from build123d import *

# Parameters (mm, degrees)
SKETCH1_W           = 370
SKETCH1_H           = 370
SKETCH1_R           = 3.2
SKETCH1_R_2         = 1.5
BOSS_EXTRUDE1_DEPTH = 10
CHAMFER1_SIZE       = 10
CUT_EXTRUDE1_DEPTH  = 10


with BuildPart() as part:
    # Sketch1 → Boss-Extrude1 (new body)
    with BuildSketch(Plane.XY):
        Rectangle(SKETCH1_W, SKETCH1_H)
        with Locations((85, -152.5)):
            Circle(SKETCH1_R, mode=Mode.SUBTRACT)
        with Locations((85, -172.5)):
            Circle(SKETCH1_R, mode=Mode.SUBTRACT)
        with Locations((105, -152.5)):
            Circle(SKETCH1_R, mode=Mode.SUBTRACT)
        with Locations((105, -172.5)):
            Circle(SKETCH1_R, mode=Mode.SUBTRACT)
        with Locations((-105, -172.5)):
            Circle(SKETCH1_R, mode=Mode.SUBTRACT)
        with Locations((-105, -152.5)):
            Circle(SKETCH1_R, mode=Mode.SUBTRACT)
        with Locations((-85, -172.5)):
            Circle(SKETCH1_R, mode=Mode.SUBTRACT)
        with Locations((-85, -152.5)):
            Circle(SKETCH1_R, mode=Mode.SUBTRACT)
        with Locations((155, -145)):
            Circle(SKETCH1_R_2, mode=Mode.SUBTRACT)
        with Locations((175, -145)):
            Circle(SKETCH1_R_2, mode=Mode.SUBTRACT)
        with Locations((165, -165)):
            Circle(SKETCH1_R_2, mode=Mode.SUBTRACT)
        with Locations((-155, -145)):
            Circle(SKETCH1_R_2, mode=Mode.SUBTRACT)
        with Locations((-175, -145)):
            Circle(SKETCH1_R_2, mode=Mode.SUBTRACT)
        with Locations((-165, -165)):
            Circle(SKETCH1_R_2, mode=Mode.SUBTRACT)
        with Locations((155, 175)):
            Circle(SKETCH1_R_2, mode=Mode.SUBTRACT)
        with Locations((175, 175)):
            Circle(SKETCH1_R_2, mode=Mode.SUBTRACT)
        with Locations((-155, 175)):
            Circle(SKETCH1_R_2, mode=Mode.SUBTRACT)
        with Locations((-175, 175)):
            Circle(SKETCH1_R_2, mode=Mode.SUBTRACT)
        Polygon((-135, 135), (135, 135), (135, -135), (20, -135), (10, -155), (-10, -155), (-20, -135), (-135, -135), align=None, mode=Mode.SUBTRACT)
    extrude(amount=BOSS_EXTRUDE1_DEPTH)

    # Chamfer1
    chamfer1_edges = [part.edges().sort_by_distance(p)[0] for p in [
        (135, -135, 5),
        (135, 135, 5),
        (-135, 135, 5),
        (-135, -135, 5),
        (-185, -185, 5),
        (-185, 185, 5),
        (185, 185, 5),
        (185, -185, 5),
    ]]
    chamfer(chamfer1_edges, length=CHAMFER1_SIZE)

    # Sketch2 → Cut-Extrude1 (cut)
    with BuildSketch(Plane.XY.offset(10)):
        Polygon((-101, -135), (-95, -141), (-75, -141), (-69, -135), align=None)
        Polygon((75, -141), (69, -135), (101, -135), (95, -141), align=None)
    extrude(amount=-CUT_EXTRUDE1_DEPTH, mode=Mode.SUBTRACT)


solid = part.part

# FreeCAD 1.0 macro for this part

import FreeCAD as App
import Part
import Sketcher
from FreeCAD import Vector
Q = App.Units.Quantity


def edges_at(feature, points):
    """Names of the edges that pass closest to the given points."""
    edges = feature.Shape.Edges
    near = lambda p: min(range(len(edges)), key=lambda i: edges[i].distToShape(Part.Vertex(*p))[0])
    return sorted({f"Edge{near(p) + 1}" for p in points})

doc = App.newDocument("Part")
body = doc.addObject("PartDesign::Body", "Body")

# Sketch on XY plane
sketch1 = doc.addObject("Sketcher::SketchObject", "Sketch")
body.addObject(sketch1)
sketch1.AttachmentSupport = (doc.XY_Plane, [""])
sketch1.MapMode = "FlatFace"
sketch1.addGeometry(Part.LineSegment(Vector(-185, 185, 0), Vector(-185, -185, 0)), False)
sketch1.addGeometry(Part.LineSegment(Vector(-185, -185, 0), Vector(185, -185, 0)), False)
sketch1.addGeometry(Part.LineSegment(Vector(185, -185, 0), Vector(185, 185, 0)), False)
sketch1.addGeometry(Part.LineSegment(Vector(185, 185, 0), Vector(-185, 185, 0)), False)
sketch1.addGeometry(Part.Circle(Vector(-165, -165, 0), Vector(0, 0, 1), 1.5), False)
sketch1.addGeometry(Part.Circle(Vector(-175, -145, 0), Vector(0, 0, 1), 1.5), False)
sketch1.addGeometry(Part.Circle(Vector(-155, -145, 0), Vector(0, 0, 1), 1.5), False)
sketch1.addGeometry(Part.Circle(Vector(-105, -172.5, 0), Vector(0, 0, 1), 3.2), False)
sketch1.addGeometry(Part.Circle(Vector(-105, -152.5, 0), Vector(0, 0, 1), 3.2), False)
sketch1.addGeometry(Part.Circle(Vector(-85, -172.5, 0), Vector(0, 0, 1), 3.2), False)
sketch1.addGeometry(Part.Circle(Vector(-85, -152.5, 0), Vector(0, 0, 1), 3.2), False)
sketch1.addGeometry(Part.Circle(Vector(85, -172.5, 0), Vector(0, 0, 1), 3.2), False)
sketch1.addGeometry(Part.Circle(Vector(85, -152.5, 0), Vector(0, 0, 1), 3.2), False)
sketch1.addGeometry(Part.Circle(Vector(105, -172.5, 0), Vector(0, 0, 1), 3.2), False)
sketch1.addGeometry(Part.Circle(Vector(105, -152.5, 0), Vector(0, 0, 1), 3.2), False)
sketch1.addGeometry(Part.Circle(Vector(165, -165, 0), Vector(0, 0, 1), 1.5), False)
sketch1.addGeometry(Part.Circle(Vector(155, -145, 0), Vector(0, 0, 1), 1.5), False)
sketch1.addGeometry(Part.Circle(Vector(175, -145, 0), Vector(0, 0, 1), 1.5), False)
sketch1.addGeometry(Part.LineSegment(Vector(-135, -135, 0), Vector(-135, 135, 0)), False)
sketch1.addGeometry(Part.LineSegment(Vector(-135, 135, 0), Vector(135, 135, 0)), False)
sketch1.addGeometry(Part.LineSegment(Vector(135, 135, 0), Vector(135, -135, 0)), False)
sketch1.addGeometry(Part.LineSegment(Vector(135, -135, 0), Vector(20, -135, 0)), False)
sketch1.addGeometry(Part.LineSegment(Vector(20, -135, 0), Vector(10, -155, 0)), False)
sketch1.addGeometry(Part.LineSegment(Vector(10, -155, 0), Vector(-10, -155, 0)), False)
sketch1.addGeometry(Part.LineSegment(Vector(-10, -155, 0), Vector(-20, -135, 0)), False)
sketch1.addGeometry(Part.LineSegment(Vector(-20, -135, 0), Vector(-135, -135, 0)), False)
sketch1.addGeometry(Part.Circle(Vector(-175, 175, 0), Vector(0, 0, 1), 1.5), False)
sketch1.addGeometry(Part.Circle(Vector(-155, 175, 0), Vector(0, 0, 1), 1.5), False)
sketch1.addGeometry(Part.Circle(Vector(155, 175, 0), Vector(0, 0, 1), 1.5), False)
sketch1.addGeometry(Part.Circle(Vector(175, 175, 0), Vector(0, 0, 1), 1.5), False)
sketch1.addConstraint(Sketcher.Constraint("Coincident", 0, 2, 1, 1))
sketch1.addConstraint(Sketcher.Constraint("Coincident", 1, 2, 2, 1))
sketch1.addConstraint(Sketcher.Constraint("Coincident", 2, 2, 3, 1))
sketch1.addConstraint(Sketcher.Constraint("Coincident", 3, 2, 0, 1))
sketch1.addConstraint(Sketcher.Constraint("Coincident", 18, 2, 19, 1))
sketch1.addConstraint(Sketcher.Constraint("Coincident", 19, 2, 20, 1))
sketch1.addConstraint(Sketcher.Constraint("Coincident", 20, 2, 21, 1))
sketch1.addConstraint(Sketcher.Constraint("Coincident", 21, 2, 22, 1))
sketch1.addConstraint(Sketcher.Constraint("Coincident", 22, 2, 23, 1))
sketch1.addConstraint(Sketcher.Constraint("Coincident", 23, 2, 24, 1))
sketch1.addConstraint(Sketcher.Constraint("Coincident", 24, 2, 25, 1))
sketch1.addConstraint(Sketcher.Constraint("Coincident", 25, 2, 18, 1))
sketch1.addConstraint(Sketcher.Constraint("Vertical", 0))
sketch1.addConstraint(Sketcher.Constraint("Horizontal", 1))
sketch1.addConstraint(Sketcher.Constraint("Vertical", 2))
sketch1.addConstraint(Sketcher.Constraint("Horizontal", 3))
sketch1.addConstraint(Sketcher.Constraint("Vertical", 18))
sketch1.addConstraint(Sketcher.Constraint("Horizontal", 19))
sketch1.addConstraint(Sketcher.Constraint("Vertical", 20))
sketch1.addConstraint(Sketcher.Constraint("Horizontal", 21))
sketch1.addConstraint(Sketcher.Constraint("Horizontal", 23))
sketch1.addConstraint(Sketcher.Constraint("Horizontal", 25))
sketch1.addConstraint(Sketcher.Constraint("Equal", 4, 5))
sketch1.addConstraint(Sketcher.Constraint("Equal", 5, 6))
sketch1.addConstraint(Sketcher.Constraint("Equal", 7, 8))
sketch1.addConstraint(Sketcher.Constraint("Equal", 8, 9))
sketch1.addConstraint(Sketcher.Constraint("Equal", 9, 10))
sketch1.addConstraint(Sketcher.Constraint("Equal", 10, 11))
sketch1.addConstraint(Sketcher.Constraint("Equal", 11, 12))
sketch1.addConstraint(Sketcher.Constraint("Equal", 12, 13))
sketch1.addConstraint(Sketcher.Constraint("Equal", 13, 14))
sketch1.addConstraint(Sketcher.Constraint("Equal", 6, 15))
sketch1.addConstraint(Sketcher.Constraint("Equal", 15, 16))
sketch1.addConstraint(Sketcher.Constraint("Equal", 16, 17))
sketch1.addConstraint(Sketcher.Constraint("Equal", 17, 26))
sketch1.addConstraint(Sketcher.Constraint("Equal", 26, 27))
sketch1.addConstraint(Sketcher.Constraint("Equal", 27, 28))
sketch1.addConstraint(Sketcher.Constraint("Equal", 28, 29))
sketch1.addConstraint(Sketcher.Constraint("Symmetric", 0, 2, 2, 2, -1, 1))
sketch1.addConstraint(Sketcher.Constraint("Symmetric", 18, 2, 20, 2, -1, 1))
sketch1.addConstraint(Sketcher.Constraint("Symmetric", 9, 3, 11, 3, -2))
sketch1.addConstraint(Sketcher.Constraint("Symmetric", 10, 3, 12, 3, -2))
sketch1.addConstraint(Sketcher.Constraint("Symmetric", 7, 3, 13, 3, -2))
sketch1.addConstraint(Sketcher.Constraint("Symmetric", 8, 3, 14, 3, -2))
sketch1.addConstraint(Sketcher.Constraint("Symmetric", 4, 3, 15, 3, -2))
sketch1.addConstraint(Sketcher.Constraint("Symmetric", 6, 3, 16, 3, -2))
sketch1.addConstraint(Sketcher.Constraint("Symmetric", 5, 3, 17, 3, -2))
sketch1.addConstraint(Sketcher.Constraint("Symmetric", 27, 3, 28, 3, -2))
sketch1.addConstraint(Sketcher.Constraint("Symmetric", 26, 3, 29, 3, -2))
sketch1.addConstraint(Sketcher.Constraint("Symmetric", 21, 2, 24, 2, -2))
sketch1.addConstraint(Sketcher.Constraint("Horizontal", 5, 3, 6, 3))
sketch1.addConstraint(Sketcher.Constraint("Horizontal", 7, 3, 9, 3))
sketch1.addConstraint(Sketcher.Constraint("Horizontal", 8, 3, 10, 3))
sketch1.addConstraint(Sketcher.Constraint("Horizontal", 26, 3, 27, 3))
sketch1.addConstraint(Sketcher.Constraint("Vertical", 7, 3, 8, 3))
sketch1.addConstraint(Sketcher.Constraint("Vertical", 9, 3, 10, 3))
sketch1.addConstraint(Sketcher.Constraint("Vertical", 5, 3, 26, 3))
sketch1.addConstraint(Sketcher.Constraint("Vertical", 6, 3, 27, 3))
sketch1.addConstraint(Sketcher.Constraint("Equal", 3, 0))
sketch1.addConstraint(Sketcher.Constraint("Equal", 19, 18))
sketch1.addConstraint(Sketcher.Constraint("Equal", 22, 24))
sketch1.addConstraint(Sketcher.Constraint("Diameter", 4, Q("3 mm")))
sketch1.addConstraint(Sketcher.Constraint("Diameter", 7, Q("6.4 mm")))
sketch1.addConstraint(Sketcher.Constraint("DistanceX", 1, 1, 1, 2, Q("370 mm")))
sketch1.addConstraint(Sketcher.Constraint("DistanceX", 19, 1, 19, 2, Q("270 mm")))
sketch1.addConstraint(Sketcher.Constraint("DistanceX", 21, 2, 21, 1, Q("115 mm")))
sketch1.addConstraint(Sketcher.Constraint("DistanceX", 23, 2, 23, 1, Q("20 mm")))
sketch1.addConstraint(Sketcher.Constraint("DistanceX", 4, 3, -1, 1, Q("165 mm")))
sketch1.addConstraint(Sketcher.Constraint("DistanceY", 4, 3, -1, 1, Q("165 mm")))
sketch1.addConstraint(Sketcher.Constraint("DistanceX", 5, 3, -1, 1, Q("175 mm")))
sketch1.addConstraint(Sketcher.Constraint("DistanceY", 5, 3, -1, 1, Q("145 mm")))
sketch1.addConstraint(Sketcher.Constraint("DistanceX", 6, 3, -1, 1, Q("155 mm")))
sketch1.addConstraint(Sketcher.Constraint("DistanceX", 7, 3, -1, 1, Q("105 mm")))
sketch1.addConstraint(Sketcher.Constraint("DistanceX", 9, 3, -1, 1, Q("85 mm")))
sketch1.addConstraint(Sketcher.Constraint("DistanceY", -1, 1, 26, 3, Q("175 mm")))
sketch1.addConstraint(Sketcher.Constraint("DistanceY", 22, 2, -1, 1, Q("155 mm")))
sketch1.addConstraint(Sketcher.Constraint("DistanceY", 7, 3, 8, 3, Q("20 mm")))
sketch1.addConstraint(Sketcher.Constraint("DistanceY", 7, 3, -1, 1, Q("172.5 mm")))
pad1 = doc.addObject("PartDesign::Pad", "Pad")
body.addObject(pad1)
pad1.Profile = sketch1
pad1.Length = 10
doc.recompute()

chamfer = doc.addObject("PartDesign::Chamfer", "Chamfer")
body.addObject(chamfer)
chamfer.Base = (pad1, edges_at(pad1, [
    (135, -135, 5),
    (135, 135, 5),
    (-135, 135, 5),
    (-135, -135, 5),
    (-185, -185, 5),
    (-185, 185, 5),
    (185, 185, 5),
    (185, -185, 5),
]))
chamfer.Size = 10

# Sketch on XY plane
sketch2 = doc.addObject("Sketcher::SketchObject", "Sketch001")
body.addObject(sketch2)
sketch2.AttachmentSupport = (doc.XY_Plane, [""])
sketch2.MapMode = "FlatFace"
sketch2.AttachmentOffset = App.Placement(Vector(0, 0, 10), App.Rotation())
sketch2.addGeometry(Part.LineSegment(Vector(-101, -135, 0), Vector(-95, -141, 0)), False)
sketch2.addGeometry(Part.LineSegment(Vector(-95, -141, 0), Vector(-75, -141, 0)), False)
sketch2.addGeometry(Part.LineSegment(Vector(-75, -141, 0), Vector(-69, -135, 0)), False)
sketch2.addGeometry(Part.LineSegment(Vector(-69, -135, 0), Vector(-101, -135, 0)), False)
sketch2.addGeometry(Part.LineSegment(Vector(69, -135, 0), Vector(75, -141, 0)), False)
sketch2.addGeometry(Part.LineSegment(Vector(75, -141, 0), Vector(95, -141, 0)), False)
sketch2.addGeometry(Part.LineSegment(Vector(95, -141, 0), Vector(101, -135, 0)), False)
sketch2.addGeometry(Part.LineSegment(Vector(101, -135, 0), Vector(69, -135, 0)), False)
sketch2.addConstraint(Sketcher.Constraint("Coincident", 0, 2, 1, 1))
sketch2.addConstraint(Sketcher.Constraint("Coincident", 1, 2, 2, 1))
sketch2.addConstraint(Sketcher.Constraint("Coincident", 2, 2, 3, 1))
sketch2.addConstraint(Sketcher.Constraint("Coincident", 3, 2, 0, 1))
sketch2.addConstraint(Sketcher.Constraint("Coincident", 4, 2, 5, 1))
sketch2.addConstraint(Sketcher.Constraint("Coincident", 5, 2, 6, 1))
sketch2.addConstraint(Sketcher.Constraint("Coincident", 6, 2, 7, 1))
sketch2.addConstraint(Sketcher.Constraint("Coincident", 7, 2, 4, 1))
sketch2.addConstraint(Sketcher.Constraint("Horizontal", 1))
sketch2.addConstraint(Sketcher.Constraint("Horizontal", 3))
sketch2.addConstraint(Sketcher.Constraint("Horizontal", 5))
sketch2.addConstraint(Sketcher.Constraint("Horizontal", 7))
sketch2.addConstraint(Sketcher.Constraint("Symmetric", 1, 2, 4, 2, -2))
sketch2.addConstraint(Sketcher.Constraint("Symmetric", 3, 2, 6, 2, -2))
sketch2.addConstraint(Sketcher.Constraint("Perpendicular", 0, 2))
sketch2.addConstraint(Sketcher.Constraint("Perpendicular", 2, 4))
sketch2.addConstraint(Sketcher.Constraint("Perpendicular", 4, 6))
sketch2.addConstraint(Sketcher.Constraint("Equal", 1, 5))
sketch2.addConstraint(Sketcher.Constraint("DistanceX", 1, 1, 1, 2, Q("20 mm")))
sketch2.addConstraint(Sketcher.Constraint("DistanceX", 3, 2, 3, 1, Q("32 mm")))
sketch2.addConstraint(Sketcher.Constraint("DistanceX", 0, 2, -1, 1, Q("95 mm")))
sketch2.addConstraint(Sketcher.Constraint("DistanceY", 0, 2, -1, 1, Q("141 mm")))
pocket1 = doc.addObject("PartDesign::Pocket", "Pocket")
body.addObject(pocket1)
pocket1.Profile = sketch2
pocket1.Length = 10

doc.recompute()
